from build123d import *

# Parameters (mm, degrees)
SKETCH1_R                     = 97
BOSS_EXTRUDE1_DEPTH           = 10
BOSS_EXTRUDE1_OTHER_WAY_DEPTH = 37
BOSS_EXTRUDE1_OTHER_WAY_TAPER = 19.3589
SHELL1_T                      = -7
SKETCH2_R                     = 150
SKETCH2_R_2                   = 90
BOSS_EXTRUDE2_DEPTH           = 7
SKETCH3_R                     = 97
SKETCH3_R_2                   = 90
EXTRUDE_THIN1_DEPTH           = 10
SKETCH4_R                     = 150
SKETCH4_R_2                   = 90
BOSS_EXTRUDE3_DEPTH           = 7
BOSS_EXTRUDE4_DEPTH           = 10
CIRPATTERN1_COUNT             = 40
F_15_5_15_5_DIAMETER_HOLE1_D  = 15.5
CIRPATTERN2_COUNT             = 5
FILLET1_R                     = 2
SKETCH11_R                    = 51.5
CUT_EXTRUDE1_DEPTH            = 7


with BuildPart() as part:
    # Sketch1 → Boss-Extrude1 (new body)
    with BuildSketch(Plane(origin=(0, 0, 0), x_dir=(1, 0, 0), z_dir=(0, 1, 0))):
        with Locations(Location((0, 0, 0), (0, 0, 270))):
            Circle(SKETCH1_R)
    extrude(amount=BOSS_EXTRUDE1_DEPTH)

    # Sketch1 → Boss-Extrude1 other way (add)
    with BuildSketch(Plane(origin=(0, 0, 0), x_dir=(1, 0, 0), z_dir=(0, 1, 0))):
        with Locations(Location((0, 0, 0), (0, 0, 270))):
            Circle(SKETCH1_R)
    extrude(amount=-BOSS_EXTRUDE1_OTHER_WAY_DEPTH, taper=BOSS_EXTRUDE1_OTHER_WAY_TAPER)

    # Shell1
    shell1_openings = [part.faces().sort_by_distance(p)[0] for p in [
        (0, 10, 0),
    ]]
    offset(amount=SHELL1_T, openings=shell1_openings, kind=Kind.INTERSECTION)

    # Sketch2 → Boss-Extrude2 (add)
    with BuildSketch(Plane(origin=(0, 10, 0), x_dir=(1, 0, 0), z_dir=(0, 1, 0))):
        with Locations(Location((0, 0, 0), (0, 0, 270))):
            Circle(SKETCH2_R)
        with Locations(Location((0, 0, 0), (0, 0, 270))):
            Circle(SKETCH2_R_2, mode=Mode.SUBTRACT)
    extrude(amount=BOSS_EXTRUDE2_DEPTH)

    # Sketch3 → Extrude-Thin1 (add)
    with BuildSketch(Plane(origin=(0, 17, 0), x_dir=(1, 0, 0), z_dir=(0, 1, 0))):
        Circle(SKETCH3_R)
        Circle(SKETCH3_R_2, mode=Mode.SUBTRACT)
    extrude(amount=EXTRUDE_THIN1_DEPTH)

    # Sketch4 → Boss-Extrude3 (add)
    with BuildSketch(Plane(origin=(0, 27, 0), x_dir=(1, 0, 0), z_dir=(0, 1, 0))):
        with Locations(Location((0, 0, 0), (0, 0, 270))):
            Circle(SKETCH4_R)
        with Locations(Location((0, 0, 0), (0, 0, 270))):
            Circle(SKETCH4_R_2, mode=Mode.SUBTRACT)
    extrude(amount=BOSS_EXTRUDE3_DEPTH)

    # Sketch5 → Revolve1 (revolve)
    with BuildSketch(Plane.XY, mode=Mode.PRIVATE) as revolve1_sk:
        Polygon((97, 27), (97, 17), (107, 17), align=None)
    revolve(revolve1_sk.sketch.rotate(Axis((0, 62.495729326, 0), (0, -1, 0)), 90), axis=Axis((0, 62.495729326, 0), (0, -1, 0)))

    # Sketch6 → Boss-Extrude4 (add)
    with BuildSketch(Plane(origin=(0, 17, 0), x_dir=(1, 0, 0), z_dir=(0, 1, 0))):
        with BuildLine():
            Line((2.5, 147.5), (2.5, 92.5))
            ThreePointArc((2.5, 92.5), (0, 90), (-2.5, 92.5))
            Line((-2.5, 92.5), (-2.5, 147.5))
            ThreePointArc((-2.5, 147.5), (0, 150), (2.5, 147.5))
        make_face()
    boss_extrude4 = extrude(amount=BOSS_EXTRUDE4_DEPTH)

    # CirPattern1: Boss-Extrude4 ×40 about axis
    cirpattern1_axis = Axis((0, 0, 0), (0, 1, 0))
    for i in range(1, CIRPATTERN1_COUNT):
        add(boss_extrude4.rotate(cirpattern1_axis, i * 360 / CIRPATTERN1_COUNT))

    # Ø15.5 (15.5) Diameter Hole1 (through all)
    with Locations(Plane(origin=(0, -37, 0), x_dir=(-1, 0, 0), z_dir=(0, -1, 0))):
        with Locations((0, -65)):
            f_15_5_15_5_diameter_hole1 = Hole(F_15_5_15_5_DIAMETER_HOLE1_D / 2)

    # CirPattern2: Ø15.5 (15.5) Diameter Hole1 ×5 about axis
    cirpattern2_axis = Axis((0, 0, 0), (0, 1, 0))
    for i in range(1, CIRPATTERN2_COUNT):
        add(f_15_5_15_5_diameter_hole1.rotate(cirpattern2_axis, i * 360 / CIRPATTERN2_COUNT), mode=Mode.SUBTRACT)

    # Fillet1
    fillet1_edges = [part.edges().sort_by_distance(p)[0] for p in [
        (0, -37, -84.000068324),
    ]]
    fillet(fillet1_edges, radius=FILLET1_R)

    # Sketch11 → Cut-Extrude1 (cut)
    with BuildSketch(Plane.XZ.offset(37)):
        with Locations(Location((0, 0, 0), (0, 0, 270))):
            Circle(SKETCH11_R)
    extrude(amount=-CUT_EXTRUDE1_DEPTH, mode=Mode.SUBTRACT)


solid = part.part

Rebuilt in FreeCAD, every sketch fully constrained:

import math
import FreeCAD as App
import Part
import Sketcher
Q = App.Units.Quantity


def edges_at(feature, points):
    """Names of the edges that pass closest to the given points."""
    edges = feature.Shape.Edges
    near = lambda p: min(range(len(edges)), key=lambda i: edges[i].distToShape(Part.Vertex(*p))[0])
    return sorted({f"Edge{near(p) + 1}" for p in points})


def faces_at(feature, points):
    """Names of the faces that lie closest to the given points."""
    faces = feature.Shape.Faces
    near = lambda p: min(range(len(faces)), key=lambda i: faces[i].distToShape(Part.Vertex(*p))[0])
    return sorted({f"Face{near(p) + 1}" for p in points})

doc = App.newDocument("Part")
body = doc.addObject("PartDesign::Body", "Body")

# Sketch on XZ plane
sketch1 = body.newObject("Sketcher::SketchObject", "Sketch")
sketch1.AttachmentSupport = (doc.getObject("XZ_Plane"), [""])
sketch1.MapMode = "FlatFace"
sketch1.addGeometry(Part.Circle(App.Vector(0, 0, 0), App.Vector(0, 0, 1), 97), False)
sketch1.addConstraint([
    Sketcher.Constraint("Coincident", 0, 3, -1, 1),
    Sketcher.Constraint("Diameter", 0, Q("194 mm")),
])
pad1 = body.newObject("PartDesign::Pad", "Pad")
pad1.Profile = sketch1
pad1.Length = 10
pad1.Reversed = True

# Sketch on XZ plane
sketch2 = body.newObject("Sketcher::SketchObject", "Sketch001")
sketch2.AttachmentSupport = (doc.getObject("XZ_Plane"), [""])
sketch2.MapMode = "FlatFace"
sketch2.addGeometry(Part.Circle(App.Vector(0, 0, 0), App.Vector(0, 0, 1), 97), False)
sketch2.addConstraint([
    Sketcher.Constraint("Coincident", 0, 3, -1, 1),
    Sketcher.Constraint("Diameter", 0, Q("194 mm")),
])
pad2 = body.newObject("PartDesign::Pad", "Pad001")
pad2.Profile = sketch2
pad2.Length = 37
pad2.TaperAngle = -19.3589
doc.recompute()

thickness = body.newObject("PartDesign::Thickness", "Thickness")
thickness.Base = (pad2, faces_at(pad2, [(0, 10, 0)]))
thickness.Value = 7
thickness.Reversed = True
thickness.Join = "Intersection"

# Sketch on XZ plane
sketch3 = body.newObject("Sketcher::SketchObject", "Sketch002")
sketch3.AttachmentSupport = (doc.getObject("XZ_Plane"), [""])
sketch3.MapMode = "FlatFace"
sketch3.AttachmentOffset = App.Placement(App.Vector(0, 0, -10), App.Rotation())
sketch3.addGeometry([
    Part.Circle(App.Vector(0, 0, 0), App.Vector(0, 0, 1), 150),
    Part.Circle(App.Vector(0, 0, 0), App.Vector(0, 0, 1), 90),
], False)
sketch3.addConstraint([
    Sketcher.Constraint("Coincident", 0, 3, -1, 1),
    Sketcher.Constraint("Coincident", 1, 3, -1, 1),
    Sketcher.Constraint("Diameter", 0, Q("300 mm")),
    Sketcher.Constraint("Diameter", 1, Q("180 mm")),
])
pad3 = body.newObject("PartDesign::Pad", "Pad002")
pad3.Profile = sketch3
pad3.Length = 7
pad3.Reversed = True

# Sketch on XZ plane
sketch4 = body.newObject("Sketcher::SketchObject", "Sketch003")
sketch4.AttachmentSupport = (doc.getObject("XZ_Plane"), [""])
sketch4.MapMode = "FlatFace"
sketch4.AttachmentOffset = App.Placement(App.Vector(0, 0, -17), App.Rotation())
sketch4.addGeometry([
    Part.Circle(App.Vector(0, 0, 0), App.Vector(0, 0, 1), 97),
    Part.Circle(App.Vector(0, 0, 0), App.Vector(0, 0, 1), 90),
], False)
sketch4.addConstraint([
    Sketcher.Constraint("Coincident", 0, 3, -1, 1),
    Sketcher.Constraint("Coincident", 1, 3, -1, 1),
    Sketcher.Constraint("Diameter", 0, Q("194 mm")),
    Sketcher.Constraint("Diameter", 1, Q("180 mm")),
])
pad4 = body.newObject("PartDesign::Pad", "Pad003")
pad4.Profile = sketch4
pad4.Length = 10
pad4.Reversed = True

# Sketch on XZ plane
sketch5 = body.newObject("Sketcher::SketchObject", "Sketch004")
sketch5.AttachmentSupport = (doc.getObject("XZ_Plane"), [""])
sketch5.MapMode = "FlatFace"
sketch5.AttachmentOffset = App.Placement(App.Vector(0, 0, -27), App.Rotation())
sketch5.addGeometry([
    Part.Circle(App.Vector(0, 0, 0), App.Vector(0, 0, 1), 150),
    Part.Circle(App.Vector(0, 0, 0), App.Vector(0, 0, 1), 90),
], False)
sketch5.addConstraint([
    Sketcher.Constraint("Coincident", 0, 3, -1, 1),
    Sketcher.Constraint("Coincident", 1, 3, -1, 1),
    Sketcher.Constraint("Diameter", 0, Q("300 mm")),
    Sketcher.Constraint("Diameter", 1, Q("180 mm")),
])
pad5 = body.newObject("PartDesign::Pad", "Pad004")
pad5.Profile = sketch5
pad5.Length = 7
pad5.Reversed = True

# Sketch on XY plane
sketch6 = body.newObject("Sketcher::SketchObject", "Sketch005")
sketch6.AttachmentSupport = (doc.getObject("XY_Plane"), [""])
sketch6.MapMode = "FlatFace"
sketch6.addGeometry([
    Part.LineSegment(App.Vector(97, 27, 0), App.Vector(97, 17, 0)),
    Part.LineSegment(App.Vector(97, 17, 0), App.Vector(107, 17, 0)),
    Part.LineSegment(App.Vector(107, 17, 0), App.Vector(97, 27, 0)),
], False)
sketch6.addConstraint([
    Sketcher.Constraint("Coincident", 0, 2, 1, 1),
    Sketcher.Constraint("Coincident", 1, 2, 2, 1),
    Sketcher.Constraint("Coincident", 2, 2, 0, 1),
    Sketcher.Constraint("Vertical", 0),
    Sketcher.Constraint("Horizontal", 1),
    Sketcher.Constraint("Equal", 1, 0),
    Sketcher.Constraint("DistanceX", 1, 1, 1, 2, Q("10 mm")),
    Sketcher.Constraint("DistanceX", -1, 1, 0, 2, Q("97 mm")),
    Sketcher.Constraint("DistanceY", -1, 1, 0, 2, Q("17 mm")),
])
revolution = body.newObject("PartDesign::Revolution", "Revolution")
revolution.Profile = sketch6
revolution.ReferenceAxis = (sketch6, ["V_Axis"])
revolution.Angle = 360

# Sketch on XZ plane
sketch7 = body.newObject("Sketcher::SketchObject", "Sketch006")
sketch7.AttachmentSupport = (doc.getObject("XZ_Plane"), [""])
sketch7.MapMode = "FlatFace"
sketch7.AttachmentOffset = App.Placement(App.Vector(0, 0, -17), App.Rotation())
sketch7.addGeometry([
    Part.LineSegment(App.Vector(2.5, -92.5, 0), App.Vector(2.5, -147.5, 0)),
    Part.ArcOfCircle(Part.Circle(App.Vector(0, -147.5, 0), App.Vector(0, 0, 1), 2.5), math.radians(180), math.radians(360)),
    Part.LineSegment(App.Vector(-2.5, -147.5, 0), App.Vector(-2.5, -92.5, 0)),
    Part.ArcOfCircle(Part.Circle(App.Vector(0, -92.5, 0), App.Vector(0, 0, 1), 2.5), math.radians(0), math.radians(180)),
], False)
sketch7.addConstraint([
    Sketcher.Constraint("Tangent", 0, 2, 1, 2),
    Sketcher.Constraint("Tangent", 1, 1, 2, 1),
    Sketcher.Constraint("Tangent", 2, 2, 3, 2),
    Sketcher.Constraint("Tangent", 3, 1, 0, 1),
    Sketcher.Constraint("Vertical", 0),
    Sketcher.Constraint("Vertical", 2),
    Sketcher.Constraint("PointOnObject", 1, 3, -2),
    Sketcher.Constraint("Radius", 1, Q("2.5 mm")),
    Sketcher.Constraint("DistanceY", 0, 2, 0, 1, Q("55 mm")),
    Sketcher.Constraint("DistanceY", 1, 3, -1, 1, Q("147.5 mm")),
])
pad6 = body.newObject("PartDesign::Pad", "Pad005")
pad6.Profile = sketch7
pad6.Length = 10
pad6.Reversed = True
doc.recompute()

polarpattern = body.newObject("PartDesign::PolarPattern", "PolarPattern")
polarpattern.Originals = [pad6]
polarpattern.Axis = (doc.getObject("Y_Axis"), [""])
polarpattern.Angle = 360
polarpattern.Occurrences = 40
body.Tip = polarpattern

# Sketch on XZ plane
sketch8 = body.newObject("Sketcher::SketchObject", "Sketch007")
sketch8.AttachmentSupport = (doc.getObject("XZ_Plane"), [""])
sketch8.MapMode = "FlatFace"
sketch8.AttachmentOffset = App.Placement(App.Vector(0, 0, 37), App.Rotation())
sketch8.addGeometry(Part.Circle(App.Vector(0, 65, 0), App.Vector(0, 0, 1), 7.75), False)
sketch8.addConstraint([
    Sketcher.Constraint("PointOnObject", 0, 3, -2),
    Sketcher.Constraint("Diameter", 0, Q("15.5 mm")),
    Sketcher.Constraint("DistanceY", -1, 1, 0, 3, Q("65 mm")),
])
doc.recompute()
hole = body.newObject("PartDesign::Hole", "Hole")
hole.Profile = sketch8
hole.ThreadType = "None"
hole.Diameter = 15.5
hole.DepthType = "ThroughAll"
doc.recompute()

polarpattern2 = body.newObject("PartDesign::PolarPattern", "PolarPattern001")
polarpattern2.Originals = [hole]
polarpattern2.Axis = (doc.getObject("Y_Axis"), [""])
polarpattern2.Angle = 360
polarpattern2.Occurrences = 5
body.Tip = polarpattern2
doc.recompute()

fillet = body.newObject("PartDesign::Fillet", "Fillet")
fillet.Base = (polarpattern2, edges_at(polarpattern2, [(0, -37, -84)]))
fillet.Radius = 2

# Sketch on XZ plane
sketch9 = body.newObject("Sketcher::SketchObject", "Sketch008")
sketch9.AttachmentSupport = (doc.getObject("XZ_Plane"), [""])
sketch9.MapMode = "FlatFace"
sketch9.AttachmentOffset = App.Placement(App.Vector(0, 0, 37), App.Rotation())
sketch9.addGeometry(Part.Circle(App.Vector(0, 0, 0), App.Vector(0, 0, 1), 51.5), False)
sketch9.addConstraint([
    Sketcher.Constraint("Coincident", 0, 3, -1, 1),
    Sketcher.Constraint("Diameter", 0, Q("103 mm")),
])
pocket1 = body.newObject("PartDesign::Pocket", "Pocket")
pocket1.Profile = sketch9
pocket1.Length = 7

doc.recompute()
